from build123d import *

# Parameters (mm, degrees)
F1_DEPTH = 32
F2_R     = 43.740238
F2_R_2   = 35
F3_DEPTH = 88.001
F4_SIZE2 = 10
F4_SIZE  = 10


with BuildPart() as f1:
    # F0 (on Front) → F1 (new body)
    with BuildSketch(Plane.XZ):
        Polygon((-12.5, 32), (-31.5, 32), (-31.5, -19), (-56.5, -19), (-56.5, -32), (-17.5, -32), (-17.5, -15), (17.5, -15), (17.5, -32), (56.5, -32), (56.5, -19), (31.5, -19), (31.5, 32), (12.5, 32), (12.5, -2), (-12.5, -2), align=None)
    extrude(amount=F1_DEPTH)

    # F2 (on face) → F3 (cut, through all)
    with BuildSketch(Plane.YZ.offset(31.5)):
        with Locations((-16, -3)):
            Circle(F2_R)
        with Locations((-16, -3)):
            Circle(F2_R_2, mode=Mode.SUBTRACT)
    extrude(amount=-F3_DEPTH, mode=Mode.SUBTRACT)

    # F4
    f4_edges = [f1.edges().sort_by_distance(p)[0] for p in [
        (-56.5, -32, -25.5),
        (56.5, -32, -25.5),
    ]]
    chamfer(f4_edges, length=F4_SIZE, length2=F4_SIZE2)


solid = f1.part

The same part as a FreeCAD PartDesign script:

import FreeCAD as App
import Part
import Sketcher

V = App.Vector


def edges_at(feature, points):
    """Names of the edges that pass closest to the given points."""
    edges = feature.Shape.Edges
    near = lambda p: min(range(len(edges)), key=lambda i: edges[i].distToShape(Part.Vertex(*p))[0])
    return sorted({f"Edge{near(p) + 1}" for p in points})

doc = App.newDocument("Part")
body = doc.addObject("PartDesign::Body", "Body")

sketch1 = doc.addObject("Sketcher::SketchObject", "Sketch")
body.addObject(sketch1)
sketch1.AttachmentSupport = (doc.XZ_Plane, [""])
sketch1.MapMode = "FlatFace"
sketch1.addGeometry([
    Part.LineSegment(V(-12.5, 32, 0), V(-31.5, 32, 0)),
    Part.LineSegment(V(-31.5, 32, 0), V(-31.5, -19, 0)),
    Part.LineSegment(V(-31.5, -19, 0), V(-56.5, -19, 0)),
    Part.LineSegment(V(-56.5, -19, 0), V(-56.5, -32, 0)),
    Part.LineSegment(V(-56.5, -32, 0), V(-17.5, -32, 0)),
    Part.LineSegment(V(-17.5, -32, 0), V(-17.5, -15, 0)),
    Part.LineSegment(V(-17.5, -15, 0), V(17.5, -15, 0)),
    Part.LineSegment(V(17.5, -15, 0), V(17.5, -32, 0)),
    Part.LineSegment(V(17.5, -32, 0), V(56.5, -32, 0)),
    Part.LineSegment(V(56.5, -32, 0), V(56.5, -19, 0)),
    Part.LineSegment(V(56.5, -19, 0), V(31.5, -19, 0)),
    Part.LineSegment(V(31.5, -19, 0), V(31.5, 32, 0)),
    Part.LineSegment(V(31.5, 32, 0), V(12.5, 32, 0)),
    Part.LineSegment(V(12.5, 32, 0), V(12.5, -2, 0)),
    Part.LineSegment(V(12.5, -2, 0), V(-12.5, -2, 0)),
    Part.LineSegment(V(-12.5, -2, 0), V(-12.5, 32, 0)),
], False)
sketch1.addConstraint([
    Sketcher.Constraint("Coincident", 0, 2, 1, 1),
    Sketcher.Constraint("Coincident", 1, 2, 2, 1),
    Sketcher.Constraint("Coincident", 2, 2, 3, 1),
    Sketcher.Constraint("Coincident", 3, 2, 4, 1),
    Sketcher.Constraint("Coincident", 4, 2, 5, 1),
    Sketcher.Constraint("Coincident", 5, 2, 6, 1),
    Sketcher.Constraint("Coincident", 6, 2, 7, 1),
    Sketcher.Constraint("Coincident", 7, 2, 8, 1),
    Sketcher.Constraint("Coincident", 8, 2, 9, 1),
    Sketcher.Constraint("Coincident", 9, 2, 10, 1),
    Sketcher.Constraint("Coincident", 10, 2, 11, 1),
    Sketcher.Constraint("Coincident", 11, 2, 12, 1),
    Sketcher.Constraint("Coincident", 12, 2, 13, 1),
    Sketcher.Constraint("Coincident", 13, 2, 14, 1),
    Sketcher.Constraint("Coincident", 14, 2, 15, 1),
    Sketcher.Constraint("Coincident", 15, 2, 0, 1),
    Sketcher.Constraint("Horizontal", 0),
    Sketcher.Constraint("Vertical", 1),
    Sketcher.Constraint("Horizontal", 2),
    Sketcher.Constraint("Vertical", 3),
    Sketcher.Constraint("Horizontal", 4),
    Sketcher.Constraint("Vertical", 5),
    Sketcher.Constraint("Horizontal", 6),
    Sketcher.Constraint("Vertical", 7),
    Sketcher.Constraint("Horizontal", 8),
    Sketcher.Constraint("Vertical", 9),
    Sketcher.Constraint("Horizontal", 10),
    Sketcher.Constraint("Vertical", 11),
    Sketcher.Constraint("Horizontal", 12),
    Sketcher.Constraint("Vertical", 13),
    Sketcher.Constraint("Horizontal", 14),
    Sketcher.Constraint("Vertical", 15),
    Sketcher.Constraint("Symmetric", 4, 2, 7, 2, -2),
    Sketcher.Constraint("Symmetric", 2, 2, 9, 2, -2),
    Sketcher.Constraint("Symmetric", 0, 2, 11, 2, -2),
    Sketcher.Constraint("Equal", 0, 12),
    Sketcher.Constraint("Equal", 10, 14),
    Sketcher.Constraint("DistanceX", 0, 2, 0, 1, 19.0),
    Sketcher.Constraint("DistanceX", 2, 2, 2, 1, 25.0),
    Sketcher.Constraint("DistanceX", 4, 1, 4, 2, 39.0),
    Sketcher.Constraint("DistanceY", 1, 2, 1, 1, 51.0),
    Sketcher.Constraint("DistanceY", 3, 2, 3, 1, 13.0),
    Sketcher.Constraint("DistanceY", 5, 1, 5, 2, 17.0),
    Sketcher.Constraint("DistanceY", 13, 2, 13, 1, 34.0),
    Sketcher.Constraint("DistanceY", -1, 1, 0, 2, 32.0),
])
pad1 = doc.addObject("PartDesign::Pad", "Pad")
body.addObject(pad1)
pad1.Profile = sketch1
pad1.Length = 32

sketch2 = doc.addObject("Sketcher::SketchObject", "Sketch001")
body.addObject(sketch2)
sketch2.AttachmentSupport = (doc.YZ_Plane, [""])
sketch2.MapMode = "FlatFace"
sketch2.AttachmentOffset = App.Placement(V(0, 0, 31.5), App.Rotation())
sketch2.addGeometry([
    Part.Circle(V(-16, -3, 0), V(0, 0, 1), 43.740238),
    Part.Circle(V(-16, -3, 0), V(0, 0, 1), 35),
], False)
sketch2.addConstraint([
    Sketcher.Constraint("Coincident", 1, 3, 0, 3),
    Sketcher.Constraint("Diameter", 1, 70.0),
    Sketcher.Constraint("DistanceX", 0, 3, -1, 1, 16.0),
    Sketcher.Constraint("DistanceY", 0, 3, -1, 1, 3.0),
    Sketcher.Constraint("Diameter", 0, 87.480476),
])
pocket1 = doc.addObject("PartDesign::Pocket", "Pocket")
body.addObject(pocket1)
pocket1.Profile = sketch2
pocket1.Type = "ThroughAll"
doc.recompute()

chamfer = doc.addObject("PartDesign::Chamfer", "Chamfer")
body.addObject(chamfer)
chamfer.Base = (pocket1, edges_at(pocket1, [(-56.5, -32, -25.5), (56.5, -32, -25.5)]))
chamfer.ChamferType = "Two distances"
chamfer.Size = 10
chamfer.Size2 = 10

doc.recompute()
